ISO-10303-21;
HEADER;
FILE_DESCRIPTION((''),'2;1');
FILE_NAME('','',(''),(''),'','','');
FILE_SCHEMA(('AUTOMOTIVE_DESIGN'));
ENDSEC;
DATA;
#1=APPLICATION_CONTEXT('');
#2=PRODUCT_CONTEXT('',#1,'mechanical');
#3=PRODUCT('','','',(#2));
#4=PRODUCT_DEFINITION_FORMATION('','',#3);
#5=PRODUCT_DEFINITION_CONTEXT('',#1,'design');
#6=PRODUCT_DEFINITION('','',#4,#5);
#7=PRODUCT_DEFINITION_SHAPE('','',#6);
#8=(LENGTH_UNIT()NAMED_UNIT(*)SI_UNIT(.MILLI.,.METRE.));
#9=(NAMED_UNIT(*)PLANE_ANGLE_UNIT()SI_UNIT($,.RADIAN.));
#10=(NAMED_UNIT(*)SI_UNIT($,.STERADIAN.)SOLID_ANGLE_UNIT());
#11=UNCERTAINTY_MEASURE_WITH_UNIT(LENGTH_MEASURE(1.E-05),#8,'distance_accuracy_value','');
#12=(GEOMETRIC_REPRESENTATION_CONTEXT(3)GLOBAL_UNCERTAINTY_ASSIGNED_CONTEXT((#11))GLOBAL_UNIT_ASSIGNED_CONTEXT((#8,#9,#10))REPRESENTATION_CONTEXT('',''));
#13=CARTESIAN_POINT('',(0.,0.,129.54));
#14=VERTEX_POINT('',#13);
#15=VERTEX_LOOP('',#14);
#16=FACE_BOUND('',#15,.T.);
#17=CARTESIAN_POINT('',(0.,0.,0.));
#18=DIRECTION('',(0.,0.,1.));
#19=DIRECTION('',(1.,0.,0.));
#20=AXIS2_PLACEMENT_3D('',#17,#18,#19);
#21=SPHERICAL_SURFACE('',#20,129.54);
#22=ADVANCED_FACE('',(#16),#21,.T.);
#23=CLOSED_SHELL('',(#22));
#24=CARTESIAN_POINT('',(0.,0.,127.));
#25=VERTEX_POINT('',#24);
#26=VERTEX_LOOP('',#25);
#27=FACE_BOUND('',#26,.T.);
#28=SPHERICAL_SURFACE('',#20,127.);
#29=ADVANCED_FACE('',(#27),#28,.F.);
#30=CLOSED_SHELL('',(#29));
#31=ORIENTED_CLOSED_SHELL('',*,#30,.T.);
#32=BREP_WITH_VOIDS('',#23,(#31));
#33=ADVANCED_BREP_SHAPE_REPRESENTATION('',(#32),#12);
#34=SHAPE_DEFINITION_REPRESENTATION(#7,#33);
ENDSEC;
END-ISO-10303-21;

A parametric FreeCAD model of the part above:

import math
import FreeCAD as App
import Part
import Sketcher
from FreeCAD import Vector
Q = App.Units.Quantity

doc = App.newDocument("Part")
body = doc.addObject("PartDesign::Body", "Body")

# Sketch on XZ plane
sketch1 = body.newObject("Sketcher::SketchObject", "Sketch")
sketch1.AttachmentSupport = (doc.getObject("XZ_Plane"), [""])
sketch1.MapMode = "FlatFace"
sketch1.addGeometry([
    Part.ArcOfCircle(Part.Circle(Vector(0, 0, 0), Vector(0, 0, 1), 127), math.radians(90), math.radians(270)),
    Part.LineSegment(Vector(0, -127, 0), Vector(0, -129.5, 0)),
    Part.ArcOfCircle(Part.Circle(Vector(0, 0, 0), Vector(0, 0, 1), 129.5), math.radians(90), math.radians(270)),
    Part.LineSegment(Vector(0, 129.5, 0), Vector(0, 127, 0)),
], False)
sketch1.addConstraint([
    Sketcher.Constraint("Coincident", 0, 2, 1, 1),
    Sketcher.Constraint("Coincident", 1, 2, 2, 2),
    Sketcher.Constraint("Coincident", 2, 1, 3, 1),
    Sketcher.Constraint("Coincident", 3, 2, 0, 1),
    Sketcher.Constraint("Vertical", 1),
    Sketcher.Constraint("Vertical", 3),
    Sketcher.Constraint("Coincident", 0, 3, -1, 1),
    Sketcher.Constraint("Coincident", 2, 3, -1, 1),
    Sketcher.Constraint("PointOnObject", 0, 2, -2),
    Sketcher.Constraint("PointOnObject", 2, 1, -2),
    Sketcher.Constraint("Radius", 0, Q("5 in")),
    Sketcher.Constraint("Radius", 2, Q("5.1 in")),
])
revolution = body.newObject("PartDesign::Revolution", "Revolution")
revolution.Profile = sketch1
revolution.ReferenceAxis = (sketch1, ["V_Axis"])
revolution.Angle = 360

doc.recompute()
